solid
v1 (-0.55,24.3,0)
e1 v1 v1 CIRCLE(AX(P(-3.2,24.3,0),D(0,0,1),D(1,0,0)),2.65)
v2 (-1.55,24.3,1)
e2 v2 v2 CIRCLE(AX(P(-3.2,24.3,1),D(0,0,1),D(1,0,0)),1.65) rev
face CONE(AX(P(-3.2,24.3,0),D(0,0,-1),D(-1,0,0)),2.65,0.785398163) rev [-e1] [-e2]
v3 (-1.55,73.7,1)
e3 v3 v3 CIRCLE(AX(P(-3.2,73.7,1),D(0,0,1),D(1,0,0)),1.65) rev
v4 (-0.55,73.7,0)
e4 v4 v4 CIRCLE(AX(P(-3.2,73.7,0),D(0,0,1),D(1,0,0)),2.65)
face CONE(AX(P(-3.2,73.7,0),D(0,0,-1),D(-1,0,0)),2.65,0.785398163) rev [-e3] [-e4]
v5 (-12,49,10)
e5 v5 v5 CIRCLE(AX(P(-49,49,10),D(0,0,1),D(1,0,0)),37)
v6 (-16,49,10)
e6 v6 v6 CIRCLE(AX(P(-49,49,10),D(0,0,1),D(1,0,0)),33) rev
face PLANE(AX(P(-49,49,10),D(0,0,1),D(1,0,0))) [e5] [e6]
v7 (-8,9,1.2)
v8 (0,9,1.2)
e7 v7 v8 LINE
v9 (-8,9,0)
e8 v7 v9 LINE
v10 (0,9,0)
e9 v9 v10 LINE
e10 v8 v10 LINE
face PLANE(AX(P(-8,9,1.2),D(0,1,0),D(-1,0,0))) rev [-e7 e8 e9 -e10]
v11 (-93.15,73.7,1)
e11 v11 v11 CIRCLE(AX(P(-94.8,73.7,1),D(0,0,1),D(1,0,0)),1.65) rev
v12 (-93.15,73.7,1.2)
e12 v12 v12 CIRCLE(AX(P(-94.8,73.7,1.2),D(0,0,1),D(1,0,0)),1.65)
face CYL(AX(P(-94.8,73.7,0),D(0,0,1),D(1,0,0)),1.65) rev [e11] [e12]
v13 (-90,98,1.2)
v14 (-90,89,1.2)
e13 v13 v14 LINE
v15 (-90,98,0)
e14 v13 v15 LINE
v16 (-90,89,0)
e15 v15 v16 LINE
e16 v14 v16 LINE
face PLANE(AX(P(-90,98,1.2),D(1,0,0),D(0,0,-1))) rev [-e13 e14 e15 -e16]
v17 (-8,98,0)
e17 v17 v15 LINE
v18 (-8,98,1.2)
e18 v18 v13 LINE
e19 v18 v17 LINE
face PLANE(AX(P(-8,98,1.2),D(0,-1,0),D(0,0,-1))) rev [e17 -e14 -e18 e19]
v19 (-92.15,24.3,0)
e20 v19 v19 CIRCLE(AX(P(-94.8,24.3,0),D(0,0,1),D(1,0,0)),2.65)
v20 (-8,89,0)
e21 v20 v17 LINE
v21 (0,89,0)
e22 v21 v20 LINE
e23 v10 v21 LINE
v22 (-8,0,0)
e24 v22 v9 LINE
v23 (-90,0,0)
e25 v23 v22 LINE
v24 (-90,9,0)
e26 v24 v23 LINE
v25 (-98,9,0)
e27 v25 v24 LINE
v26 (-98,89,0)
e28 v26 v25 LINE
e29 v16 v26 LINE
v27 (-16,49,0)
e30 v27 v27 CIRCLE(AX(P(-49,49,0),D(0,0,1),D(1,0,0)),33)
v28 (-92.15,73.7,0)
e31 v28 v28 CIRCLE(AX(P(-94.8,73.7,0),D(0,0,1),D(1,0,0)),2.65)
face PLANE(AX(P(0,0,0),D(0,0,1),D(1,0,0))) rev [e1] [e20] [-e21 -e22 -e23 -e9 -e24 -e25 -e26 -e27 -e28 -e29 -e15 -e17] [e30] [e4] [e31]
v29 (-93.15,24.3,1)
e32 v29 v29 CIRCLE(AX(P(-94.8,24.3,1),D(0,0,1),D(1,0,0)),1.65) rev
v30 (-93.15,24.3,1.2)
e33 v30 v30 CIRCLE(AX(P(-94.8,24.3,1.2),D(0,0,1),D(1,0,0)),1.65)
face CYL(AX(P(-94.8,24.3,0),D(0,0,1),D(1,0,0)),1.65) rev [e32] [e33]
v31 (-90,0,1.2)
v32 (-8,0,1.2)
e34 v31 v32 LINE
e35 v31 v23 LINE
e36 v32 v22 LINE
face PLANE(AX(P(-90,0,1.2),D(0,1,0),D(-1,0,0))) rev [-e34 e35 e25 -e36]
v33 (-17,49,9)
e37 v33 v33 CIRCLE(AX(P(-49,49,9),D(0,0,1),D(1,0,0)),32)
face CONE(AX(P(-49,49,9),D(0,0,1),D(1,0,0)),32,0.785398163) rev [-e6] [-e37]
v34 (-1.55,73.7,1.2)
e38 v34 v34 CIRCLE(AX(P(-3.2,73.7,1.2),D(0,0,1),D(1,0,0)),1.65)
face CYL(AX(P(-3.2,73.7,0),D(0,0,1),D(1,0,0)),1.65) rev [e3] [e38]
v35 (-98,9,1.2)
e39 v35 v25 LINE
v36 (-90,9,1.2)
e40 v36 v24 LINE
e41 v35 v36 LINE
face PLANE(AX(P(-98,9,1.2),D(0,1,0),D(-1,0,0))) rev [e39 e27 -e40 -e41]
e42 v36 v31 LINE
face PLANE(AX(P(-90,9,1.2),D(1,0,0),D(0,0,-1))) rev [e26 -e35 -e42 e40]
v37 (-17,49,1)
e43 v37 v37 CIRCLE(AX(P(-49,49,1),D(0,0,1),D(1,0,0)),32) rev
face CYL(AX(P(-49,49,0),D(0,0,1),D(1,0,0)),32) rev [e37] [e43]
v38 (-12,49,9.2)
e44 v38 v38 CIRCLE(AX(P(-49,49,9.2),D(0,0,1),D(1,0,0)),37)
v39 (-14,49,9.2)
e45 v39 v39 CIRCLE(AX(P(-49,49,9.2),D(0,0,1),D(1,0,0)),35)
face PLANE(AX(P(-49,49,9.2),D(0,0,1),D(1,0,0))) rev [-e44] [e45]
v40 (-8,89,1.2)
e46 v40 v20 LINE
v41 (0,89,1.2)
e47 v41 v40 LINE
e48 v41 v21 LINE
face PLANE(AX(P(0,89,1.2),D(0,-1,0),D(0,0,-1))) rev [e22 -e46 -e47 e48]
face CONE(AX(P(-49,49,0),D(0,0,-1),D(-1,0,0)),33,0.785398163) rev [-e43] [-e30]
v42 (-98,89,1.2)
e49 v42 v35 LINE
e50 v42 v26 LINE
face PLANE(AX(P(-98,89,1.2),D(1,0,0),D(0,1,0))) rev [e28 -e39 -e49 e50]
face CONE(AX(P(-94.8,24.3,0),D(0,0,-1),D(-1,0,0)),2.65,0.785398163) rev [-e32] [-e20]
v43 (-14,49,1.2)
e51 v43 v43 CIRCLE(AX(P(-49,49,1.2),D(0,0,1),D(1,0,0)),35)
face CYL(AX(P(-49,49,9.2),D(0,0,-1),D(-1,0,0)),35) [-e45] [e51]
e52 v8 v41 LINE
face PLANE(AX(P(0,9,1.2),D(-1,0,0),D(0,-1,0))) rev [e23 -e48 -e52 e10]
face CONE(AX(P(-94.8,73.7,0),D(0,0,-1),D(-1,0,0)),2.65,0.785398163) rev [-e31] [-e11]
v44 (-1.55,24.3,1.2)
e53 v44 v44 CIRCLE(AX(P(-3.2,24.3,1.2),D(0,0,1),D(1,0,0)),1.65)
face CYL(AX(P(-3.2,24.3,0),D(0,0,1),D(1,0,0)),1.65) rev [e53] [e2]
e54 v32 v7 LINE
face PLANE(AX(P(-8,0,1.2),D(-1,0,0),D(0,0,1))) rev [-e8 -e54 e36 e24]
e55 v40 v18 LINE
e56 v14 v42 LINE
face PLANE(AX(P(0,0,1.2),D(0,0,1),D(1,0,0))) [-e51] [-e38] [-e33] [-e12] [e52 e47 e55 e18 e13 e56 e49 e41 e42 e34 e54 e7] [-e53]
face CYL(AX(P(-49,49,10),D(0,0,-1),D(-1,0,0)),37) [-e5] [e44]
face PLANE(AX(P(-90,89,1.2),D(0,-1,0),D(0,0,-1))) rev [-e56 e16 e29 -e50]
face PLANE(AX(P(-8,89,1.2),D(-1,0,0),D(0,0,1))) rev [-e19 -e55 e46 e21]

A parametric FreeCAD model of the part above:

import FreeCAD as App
import Part
import Sketcher

V = App.Vector


def edges_at(feature, points):
    """Names of the edges that pass closest to the given points."""
    edges = feature.Shape.Edges
    near = lambda p: min(range(len(edges)), key=lambda i: edges[i].distToShape(Part.Vertex(*p))[0])
    return sorted({f"Edge{near(p) + 1}" for p in points})

doc = App.newDocument("Part")
body = doc.addObject("PartDesign::Body", "Body")

# Sketch on XY plane
sketch1 = doc.addObject("Sketcher::SketchObject", "Sketch")
body.addObject(sketch1)
sketch1.AttachmentSupport = (doc.XY_Plane, [""])
sketch1.MapMode = "FlatFace"
sketch1.addGeometry([
    Part.LineSegment(V(-8, 0, 0), V(-8, 9, 0)),  # 0
    Part.LineSegment(V(-8, 9, 0), V(0, 9, 0)),  # 1
    Part.LineSegment(V(0, 9, 0), V(0, 89, 0)),  # 2
    Part.LineSegment(V(0, 89, 0), V(-8, 89, 0)),  # 3
    Part.LineSegment(V(-8, 89, 0), V(-8, 98, 0)),  # 4
    Part.LineSegment(V(-8, 98, 0), V(-90, 98, 0)),  # 5
    Part.LineSegment(V(-90, 98, 0), V(-90, 89, 0)),  # 6
    Part.LineSegment(V(-90, 89, 0), V(-98, 89, 0)),  # 7
    Part.LineSegment(V(-98, 89, 0), V(-98, 9, 0)),  # 8
    Part.LineSegment(V(-98, 9, 0), V(-90, 9, 0)),  # 9
    Part.LineSegment(V(-90, 9, 0), V(-90, 0, 0)),  # 10
    Part.LineSegment(V(-90, 0, 0), V(-8, 0, 0)),  # 11
], False)
sketch1.addConstraint([
    Sketcher.Constraint("Coincident", 0, 2, 1, 1),
    Sketcher.Constraint("Coincident", 1, 2, 2, 1),
    Sketcher.Constraint("Coincident", 2, 2, 3, 1),
    Sketcher.Constraint("Coincident", 3, 2, 4, 1),
    Sketcher.Constraint("Coincident", 4, 2, 5, 1),
    Sketcher.Constraint("Coincident", 5, 2, 6, 1),
    Sketcher.Constraint("Coincident", 6, 2, 7, 1),
    Sketcher.Constraint("Coincident", 7, 2, 8, 1),
    Sketcher.Constraint("Coincident", 8, 2, 9, 1),
    Sketcher.Constraint("Coincident", 9, 2, 10, 1),
    Sketcher.Constraint("Coincident", 10, 2, 11, 1),
    Sketcher.Constraint("Coincident", 11, 2, 0, 1),
    Sketcher.Constraint("Vertical", 0),
    Sketcher.Constraint("Horizontal", 1),
    Sketcher.Constraint("Vertical", 2),
    Sketcher.Constraint("Horizontal", 3),
    Sketcher.Constraint("Vertical", 4),
    Sketcher.Constraint("Horizontal", 5),
    Sketcher.Constraint("Vertical", 6),
    Sketcher.Constraint("Horizontal", 7),
    Sketcher.Constraint("Vertical", 8),
    Sketcher.Constraint("Horizontal", 9),
    Sketcher.Constraint("Vertical", 10),
    Sketcher.Constraint("Horizontal", 11),
    Sketcher.Constraint("PointOnObject", 1, 2, -2),
    Sketcher.Constraint("PointOnObject", 10, 2, -1),
    Sketcher.Constraint("Horizontal", 3, 2, 6, 2),
    Sketcher.Constraint("Horizontal", 1, 2, 8, 2),
    Sketcher.Constraint("Vertical", 0, 2, 3, 2),
    Sketcher.Constraint("Vertical", 6, 2, 9, 2),
    Sketcher.Constraint("Equal", 3, 7),
    Sketcher.Constraint("Equal", 0, 4),
    Sketcher.Constraint("DistanceX", 1, 1, 1, 2, 8.0),
    Sketcher.Constraint("DistanceX", 5, 2, 5, 1, 82.0),
    Sketcher.Constraint("DistanceY", 0, 1, 0, 2, 9.0),
    Sketcher.Constraint("DistanceY", 2, 1, 2, 2, 80.0),
])
pad1 = doc.addObject("PartDesign::Pad", "Pad")
body.addObject(pad1)
pad1.Profile = sketch1
pad1.Length = 1.2

# Sketch on XY plane
sketch2 = doc.addObject("Sketcher::SketchObject", "Sketch001")
body.addObject(sketch2)
sketch2.AttachmentSupport = (doc.XY_Plane, [""])
sketch2.MapMode = "FlatFace"
sketch2.AttachmentOffset = App.Placement(V(0, 0, 1.2), App.Rotation())
sketch2.addGeometry([
    Part.Circle(V(-94.8, 73.7, 0), V(0, 0, 1), 1.6),
    Part.Circle(V(-94.8, 24.3, 0), V(0, 0, 1), 1.6),
    Part.Circle(V(-3.2, 24.3, 0), V(0, 0, 1), 1.6),
    Part.Circle(V(-3.2, 73.7, 0), V(0, 0, 1), 1.6),
], False)
sketch2.addConstraint([
    Sketcher.Constraint("Equal", 0, 1),
    Sketcher.Constraint("Equal", 1, 2),
    Sketcher.Constraint("Equal", 2, 3),
    Sketcher.Constraint("Horizontal", 1, 3, 2, 3),
    Sketcher.Constraint("Horizontal", 0, 3, 3, 3),
    Sketcher.Constraint("Vertical", 0, 3, 1, 3),
    Sketcher.Constraint("Vertical", 2, 3, 3, 3),
    Sketcher.Constraint("Diameter", 0, 3.3),
    Sketcher.Constraint("DistanceX", 0, 3, -1, 1, 94.8),
    Sketcher.Constraint("DistanceY", -1, 1, 0, 3, 73.7),
    Sketcher.Constraint("DistanceY", -1, 1, 1, 3, 24.3),
    Sketcher.Constraint("DistanceX", 2, 3, -1, 1, 3.2),
])
pocket1 = doc.addObject("PartDesign::Pocket", "Pocket")
body.addObject(pocket1)
pocket1.Profile = sketch2
pocket1.Length = 1.2

# Sketch on XY plane
sketch3 = doc.addObject("Sketcher::SketchObject", "Sketch002")
body.addObject(sketch3)
sketch3.AttachmentSupport = (doc.XY_Plane, [""])
sketch3.MapMode = "FlatFace"
sketch3.AttachmentOffset = App.Placement(V(0, 0, 1.2), App.Rotation())
sketch3.addGeometry(Part.Circle(V(-49, 49, 0), V(0, 0, 1), 35), False)
sketch3.addConstraint([
    Sketcher.Constraint("Diameter", 0, 70.0),
    Sketcher.Constraint("DistanceX", 0, 3, -1, 1, 49.0),
    Sketcher.Constraint("DistanceY", -1, 1, 0, 3, 49.0),
])
pad2 = doc.addObject("PartDesign::Pad", "Pad001")
body.addObject(pad2)
pad2.Profile = sketch3
pad2.Length = 8

# Sketch on XY plane
sketch4 = doc.addObject("Sketcher::SketchObject", "Sketch003")
body.addObject(sketch4)
sketch4.AttachmentSupport = (doc.XY_Plane, [""])
sketch4.MapMode = "FlatFace"
sketch4.AttachmentOffset = App.Placement(V(0, 0, 9.2), App.Rotation())
sketch4.addGeometry(Part.Circle(V(-49, 49, 0), V(0, 0, 1), 37), False)
sketch4.addConstraint([
    Sketcher.Constraint("Diameter", 0, 74.0),
    Sketcher.Constraint("DistanceX", 0, 3, -1, 1, 49.0),
    Sketcher.Constraint("DistanceY", -1, 1, 0, 3, 49.0),
])
pad3 = doc.addObject("PartDesign::Pad", "Pad002")
body.addObject(pad3)
pad3.Profile = sketch4
pad3.Length = 0.8

# Sketch on XY plane
sketch5 = doc.addObject("Sketcher::SketchObject", "Sketch004")
body.addObject(sketch5)
sketch5.AttachmentSupport = (doc.XY_Plane, [""])
sketch5.MapMode = "FlatFace"
sketch5.AttachmentOffset = App.Placement(V(0, 0, 10), App.Rotation())
sketch5.addGeometry(Part.Circle(V(-49, 49, 0), V(0, 0, 1), 32), False)
sketch5.addConstraint([
    Sketcher.Constraint("Diameter", 0, 64.0),
    Sketcher.Constraint("DistanceX", 0, 3, -1, 1, 49.0),
    Sketcher.Constraint("DistanceY", -1, 1, 0, 3, 49.0),
])
pocket2 = doc.addObject("PartDesign::Pocket", "Pocket001")
body.addObject(pocket2)
pocket2.Profile = sketch5
pocket2.Type = "ThroughAll"
doc.recompute()

chamfer = doc.addObject("PartDesign::Chamfer", "Chamfer")
body.addObject(chamfer)
chamfer.Base = (pocket2, edges_at(pocket2, [
    (-4.85, 73.7, 0),
    (-4.85, 24.3, 0),
    (-96.45, 24.3, 0),
    (-96.45, 73.7, 0),
]))
chamfer.Size = 1
doc.recompute()

chamfer2 = doc.addObject("PartDesign::Chamfer", "Chamfer001")
body.addObject(chamfer2)
chamfer2.Base = (chamfer, edges_at(chamfer, [(-81, 49, 0), (-81, 49, 10)]))
chamfer2.Size = 1

doc.recompute()
